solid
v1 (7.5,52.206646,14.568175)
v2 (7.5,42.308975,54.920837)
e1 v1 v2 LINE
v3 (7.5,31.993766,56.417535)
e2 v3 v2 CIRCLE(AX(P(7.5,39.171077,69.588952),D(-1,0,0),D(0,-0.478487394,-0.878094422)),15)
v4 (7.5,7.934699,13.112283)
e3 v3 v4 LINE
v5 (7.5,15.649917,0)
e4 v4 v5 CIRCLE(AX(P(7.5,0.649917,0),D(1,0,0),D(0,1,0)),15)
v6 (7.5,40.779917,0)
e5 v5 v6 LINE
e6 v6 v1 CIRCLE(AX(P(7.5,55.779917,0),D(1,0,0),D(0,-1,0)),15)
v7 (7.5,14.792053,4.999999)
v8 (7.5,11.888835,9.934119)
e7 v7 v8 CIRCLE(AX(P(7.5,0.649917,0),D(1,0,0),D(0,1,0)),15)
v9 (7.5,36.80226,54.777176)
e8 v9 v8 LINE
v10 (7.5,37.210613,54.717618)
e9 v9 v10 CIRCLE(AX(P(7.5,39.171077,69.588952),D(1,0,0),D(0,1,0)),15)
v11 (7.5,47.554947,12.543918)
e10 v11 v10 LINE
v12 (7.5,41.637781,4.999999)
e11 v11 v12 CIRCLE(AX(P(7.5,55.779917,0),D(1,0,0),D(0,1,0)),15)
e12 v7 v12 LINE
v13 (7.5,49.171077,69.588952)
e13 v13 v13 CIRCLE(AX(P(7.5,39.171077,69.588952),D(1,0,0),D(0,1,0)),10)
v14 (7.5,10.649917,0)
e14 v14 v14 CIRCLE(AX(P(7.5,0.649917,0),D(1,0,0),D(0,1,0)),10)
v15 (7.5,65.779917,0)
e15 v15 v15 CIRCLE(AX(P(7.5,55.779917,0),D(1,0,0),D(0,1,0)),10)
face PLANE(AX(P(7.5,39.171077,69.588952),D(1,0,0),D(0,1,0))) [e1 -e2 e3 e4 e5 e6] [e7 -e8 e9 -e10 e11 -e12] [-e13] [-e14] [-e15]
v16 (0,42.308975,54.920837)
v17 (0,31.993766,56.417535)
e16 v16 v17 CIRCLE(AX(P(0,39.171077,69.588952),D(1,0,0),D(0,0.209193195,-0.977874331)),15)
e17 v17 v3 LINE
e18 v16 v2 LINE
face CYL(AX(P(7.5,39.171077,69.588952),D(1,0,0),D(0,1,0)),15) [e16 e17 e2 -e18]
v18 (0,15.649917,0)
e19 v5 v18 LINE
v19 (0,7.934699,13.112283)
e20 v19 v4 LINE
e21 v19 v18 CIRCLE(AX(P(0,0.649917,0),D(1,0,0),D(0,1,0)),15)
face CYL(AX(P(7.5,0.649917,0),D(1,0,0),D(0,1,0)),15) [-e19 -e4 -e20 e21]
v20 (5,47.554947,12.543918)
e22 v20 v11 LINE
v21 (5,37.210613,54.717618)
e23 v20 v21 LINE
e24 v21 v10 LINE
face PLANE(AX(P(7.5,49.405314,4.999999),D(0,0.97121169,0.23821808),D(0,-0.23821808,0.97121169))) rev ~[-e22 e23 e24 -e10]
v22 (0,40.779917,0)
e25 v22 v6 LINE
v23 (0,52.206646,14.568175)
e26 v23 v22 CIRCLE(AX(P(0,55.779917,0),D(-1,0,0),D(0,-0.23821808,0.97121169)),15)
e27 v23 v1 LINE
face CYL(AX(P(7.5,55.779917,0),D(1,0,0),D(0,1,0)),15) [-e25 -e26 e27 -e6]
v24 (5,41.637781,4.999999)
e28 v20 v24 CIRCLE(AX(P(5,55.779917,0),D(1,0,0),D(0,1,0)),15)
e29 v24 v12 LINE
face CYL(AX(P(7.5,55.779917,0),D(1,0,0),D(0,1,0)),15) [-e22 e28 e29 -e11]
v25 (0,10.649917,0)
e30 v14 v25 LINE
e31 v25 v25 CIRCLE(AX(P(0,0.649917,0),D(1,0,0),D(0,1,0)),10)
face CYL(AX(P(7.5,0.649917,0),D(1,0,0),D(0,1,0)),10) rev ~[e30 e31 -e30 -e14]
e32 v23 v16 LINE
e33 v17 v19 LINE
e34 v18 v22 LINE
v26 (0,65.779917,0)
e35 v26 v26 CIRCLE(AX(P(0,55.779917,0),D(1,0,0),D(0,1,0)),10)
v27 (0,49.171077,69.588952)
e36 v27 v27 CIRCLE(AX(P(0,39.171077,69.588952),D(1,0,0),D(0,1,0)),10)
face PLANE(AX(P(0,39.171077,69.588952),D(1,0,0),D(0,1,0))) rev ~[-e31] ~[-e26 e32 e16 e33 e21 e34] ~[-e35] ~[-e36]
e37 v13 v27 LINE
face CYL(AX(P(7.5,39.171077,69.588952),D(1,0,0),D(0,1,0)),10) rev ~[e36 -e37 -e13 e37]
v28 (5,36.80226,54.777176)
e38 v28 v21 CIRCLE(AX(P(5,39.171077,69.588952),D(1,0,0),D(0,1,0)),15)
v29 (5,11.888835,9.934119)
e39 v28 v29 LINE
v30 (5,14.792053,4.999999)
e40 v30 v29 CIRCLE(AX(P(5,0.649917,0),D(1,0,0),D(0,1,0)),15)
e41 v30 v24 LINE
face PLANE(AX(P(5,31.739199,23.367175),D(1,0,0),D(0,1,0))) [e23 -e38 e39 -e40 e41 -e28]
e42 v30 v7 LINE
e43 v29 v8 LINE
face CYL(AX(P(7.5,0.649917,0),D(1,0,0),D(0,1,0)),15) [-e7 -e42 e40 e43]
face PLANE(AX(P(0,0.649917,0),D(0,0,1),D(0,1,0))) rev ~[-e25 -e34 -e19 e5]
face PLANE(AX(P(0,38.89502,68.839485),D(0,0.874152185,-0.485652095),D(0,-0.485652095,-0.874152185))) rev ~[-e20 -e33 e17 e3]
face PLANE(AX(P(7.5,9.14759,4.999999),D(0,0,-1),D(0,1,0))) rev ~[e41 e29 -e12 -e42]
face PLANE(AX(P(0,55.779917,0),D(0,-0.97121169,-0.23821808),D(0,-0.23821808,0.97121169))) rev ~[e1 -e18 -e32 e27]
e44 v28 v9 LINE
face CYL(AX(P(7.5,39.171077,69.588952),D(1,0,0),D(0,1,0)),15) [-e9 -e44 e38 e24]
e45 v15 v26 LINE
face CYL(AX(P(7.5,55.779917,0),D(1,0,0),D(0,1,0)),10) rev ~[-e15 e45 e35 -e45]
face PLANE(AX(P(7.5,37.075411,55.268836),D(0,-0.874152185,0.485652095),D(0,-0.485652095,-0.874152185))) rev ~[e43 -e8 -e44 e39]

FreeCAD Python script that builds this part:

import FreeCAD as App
import Part
import Sketcher

V = App.Vector

doc = App.newDocument("Part")
body = doc.addObject("PartDesign::Body", "Body")

sketch1 = body.newObject("Sketcher::SketchObject", "Sketch")
sketch1.AttachmentSupport = (doc.getObject("YZ_Plane"), [""])
sketch1.MapMode = "FlatFace"
sketch1.addGeometry(Part.LineSegment(V(39, 69, 0), V(1, 0, 0)), False)
sketch1.addGeometry(Part.LineSegment(V(1, 0, 0), V(56, 0, 0)), False)
sketch1.addGeometry(Part.LineSegment(V(56, 0, 0), V(39, 69, 0)), False)
sketch1.addConstraint(Sketcher.Constraint("Coincident", 0, 2, 1, 1))
sketch1.addConstraint(Sketcher.Constraint("Coincident", 1, 2, 2, 1))
sketch1.addConstraint(Sketcher.Constraint("Coincident", 2, 2, 0, 1))
sketch1.addConstraint(Sketcher.Constraint("Horizontal", 1))
sketch1.addConstraint(Sketcher.Constraint("PointOnObject", 0, 2, -1))
sketch1.addConstraint(Sketcher.Constraint("DistanceX", 1, 1, 1, 2, 55.13))
sketch1.addConstraint(Sketcher.Constraint("Distance", 0, 78.75))
sketch1.addConstraint(Sketcher.Constraint("Distance", 2, 70.88))
sketch1.addConstraint(Sketcher.Constraint("DistanceX", -1, 1, 2, 2, 38.89502))
pad1 = body.newObject("PartDesign::Pad", "Pad")
pad1.Profile = sketch1
pad1.Length = 7.5

sketch2 = body.newObject("Sketcher::SketchObject", "Sketch001")
sketch2.AttachmentSupport = (doc.getObject("YZ_Plane"), [""])
sketch2.MapMode = "FlatFace"
sketch2.AttachmentOffset = App.Placement(V(0, 0, 7.5), App.Rotation())
sketch2.addGeometry(Part.LineSegment(V(49, 5, 0), V(37, 55, 0)), False)
sketch2.addGeometry(Part.LineSegment(V(37, 55, 0), V(9, 5, 0)), False)
sketch2.addGeometry(Part.LineSegment(V(9, 5, 0), V(49, 5, 0)), False)
sketch2.addConstraint(Sketcher.Constraint("Coincident", 0, 2, 1, 1))
sketch2.addConstraint(Sketcher.Constraint("Coincident", 1, 2, 2, 1))
sketch2.addConstraint(Sketcher.Constraint("Coincident", 2, 2, 0, 1))
sketch2.addConstraint(Sketcher.Constraint("Horizontal", 2))
sketch2.addConstraint(Sketcher.Constraint("DistanceY", -1, 1, 1, 2, 4.999999))
sketch2.addConstraint(Sketcher.Constraint("Distance", 1, 57.505819))
sketch2.addConstraint(Sketcher.Constraint("DistanceX", 2, 1, 2, 2, 40.257724))
sketch2.addConstraint(Sketcher.Constraint("DistanceX", -1, 1, 0, 2, 37.075411))
sketch2.addConstraint(Sketcher.Constraint("DistanceX", -1, 1, 1, 2, 9.14759))
pocket1 = body.newObject("PartDesign::Pocket", "Pocket")
pocket1.Profile = sketch2
pocket1.Length = 2.5

sketch3 = body.newObject("Sketcher::SketchObject", "Sketch002")
sketch3.AttachmentSupport = (doc.getObject("YZ_Plane"), [""])
sketch3.MapMode = "FlatFace"
sketch3.AttachmentOffset = App.Placement(V(0, 0, 7.5), App.Rotation())
sketch3.addGeometry(Part.Circle(V(39, 70, 0), V(0, 0, 1), 15), False)
sketch3.addGeometry(Part.Circle(V(56, 0, 0), V(0, 0, 1), 15), False)
sketch3.addGeometry(Part.Circle(V(1, 0, 0), V(0, 0, 1), 15), False)
sketch3.addConstraint(Sketcher.Constraint("Equal", 0, 1))
sketch3.addConstraint(Sketcher.Constraint("Equal", 1, 2))
sketch3.addConstraint(Sketcher.Constraint("PointOnObject", 1, 3, -1))
sketch3.addConstraint(Sketcher.Constraint("PointOnObject", 2, 3, -1))
sketch3.addConstraint(Sketcher.Constraint("Diameter", 0, 30.0))
sketch3.addConstraint(Sketcher.Constraint("DistanceX", 2, 3, 1, 3, 55.13))
sketch3.addConstraint(Sketcher.Constraint("DistanceY", -1, 1, 0, 3, 69.588952))
sketch3.addConstraint(Sketcher.Constraint("DistanceX", 0, 3, 1, 3, 16.60884))
sketch3.addConstraint(Sketcher.Constraint("DistanceX", -1, 1, 0, 3, 39.171077))
pad2 = body.newObject("PartDesign::Pad", "Pad001")
pad2.Profile = sketch3
pad2.Length = 7.5
pad2.Reversed = True

sketch4 = body.newObject("Sketcher::SketchObject", "Sketch003")
sketch4.AttachmentSupport = (doc.getObject("YZ_Plane"), [""])
sketch4.MapMode = "FlatFace"
sketch4.AttachmentOffset = App.Placement(V(0, 0, 7.5), App.Rotation())
sketch4.addGeometry(Part.Circle(V(1, 0, 0), V(0, 0, 1), 10), False)
sketch4.addGeometry(Part.Circle(V(56, 0, 0), V(0, 0, 1), 10), False)
sketch4.addGeometry(Part.Circle(V(39, 70, 0), V(0, 0, 1), 10), False)
sketch4.addConstraint(Sketcher.Constraint("Equal", 0, 1))
sketch4.addConstraint(Sketcher.Constraint("Equal", 1, 2))
sketch4.addConstraint(Sketcher.Constraint("PointOnObject", 0, 3, -1))
sketch4.addConstraint(Sketcher.Constraint("PointOnObject", 1, 3, -1))
sketch4.addConstraint(Sketcher.Constraint("Diameter", 0, 20.0))
sketch4.addConstraint(Sketcher.Constraint("DistanceX", 0, 3, 1, 3, 55.13))
sketch4.addConstraint(Sketcher.Constraint("DistanceY", -1, 1, 2, 3, 69.588952))
sketch4.addConstraint(Sketcher.Constraint("DistanceX", 2, 3, 1, 3, 16.60884))
sketch4.addConstraint(Sketcher.Constraint("DistanceX", -1, 1, 0, 3, 0.649917))
pocket2 = body.newObject("PartDesign::Pocket", "Pocket001")
pocket2.Profile = sketch4
pocket2.Length = 25

doc.recompute()
